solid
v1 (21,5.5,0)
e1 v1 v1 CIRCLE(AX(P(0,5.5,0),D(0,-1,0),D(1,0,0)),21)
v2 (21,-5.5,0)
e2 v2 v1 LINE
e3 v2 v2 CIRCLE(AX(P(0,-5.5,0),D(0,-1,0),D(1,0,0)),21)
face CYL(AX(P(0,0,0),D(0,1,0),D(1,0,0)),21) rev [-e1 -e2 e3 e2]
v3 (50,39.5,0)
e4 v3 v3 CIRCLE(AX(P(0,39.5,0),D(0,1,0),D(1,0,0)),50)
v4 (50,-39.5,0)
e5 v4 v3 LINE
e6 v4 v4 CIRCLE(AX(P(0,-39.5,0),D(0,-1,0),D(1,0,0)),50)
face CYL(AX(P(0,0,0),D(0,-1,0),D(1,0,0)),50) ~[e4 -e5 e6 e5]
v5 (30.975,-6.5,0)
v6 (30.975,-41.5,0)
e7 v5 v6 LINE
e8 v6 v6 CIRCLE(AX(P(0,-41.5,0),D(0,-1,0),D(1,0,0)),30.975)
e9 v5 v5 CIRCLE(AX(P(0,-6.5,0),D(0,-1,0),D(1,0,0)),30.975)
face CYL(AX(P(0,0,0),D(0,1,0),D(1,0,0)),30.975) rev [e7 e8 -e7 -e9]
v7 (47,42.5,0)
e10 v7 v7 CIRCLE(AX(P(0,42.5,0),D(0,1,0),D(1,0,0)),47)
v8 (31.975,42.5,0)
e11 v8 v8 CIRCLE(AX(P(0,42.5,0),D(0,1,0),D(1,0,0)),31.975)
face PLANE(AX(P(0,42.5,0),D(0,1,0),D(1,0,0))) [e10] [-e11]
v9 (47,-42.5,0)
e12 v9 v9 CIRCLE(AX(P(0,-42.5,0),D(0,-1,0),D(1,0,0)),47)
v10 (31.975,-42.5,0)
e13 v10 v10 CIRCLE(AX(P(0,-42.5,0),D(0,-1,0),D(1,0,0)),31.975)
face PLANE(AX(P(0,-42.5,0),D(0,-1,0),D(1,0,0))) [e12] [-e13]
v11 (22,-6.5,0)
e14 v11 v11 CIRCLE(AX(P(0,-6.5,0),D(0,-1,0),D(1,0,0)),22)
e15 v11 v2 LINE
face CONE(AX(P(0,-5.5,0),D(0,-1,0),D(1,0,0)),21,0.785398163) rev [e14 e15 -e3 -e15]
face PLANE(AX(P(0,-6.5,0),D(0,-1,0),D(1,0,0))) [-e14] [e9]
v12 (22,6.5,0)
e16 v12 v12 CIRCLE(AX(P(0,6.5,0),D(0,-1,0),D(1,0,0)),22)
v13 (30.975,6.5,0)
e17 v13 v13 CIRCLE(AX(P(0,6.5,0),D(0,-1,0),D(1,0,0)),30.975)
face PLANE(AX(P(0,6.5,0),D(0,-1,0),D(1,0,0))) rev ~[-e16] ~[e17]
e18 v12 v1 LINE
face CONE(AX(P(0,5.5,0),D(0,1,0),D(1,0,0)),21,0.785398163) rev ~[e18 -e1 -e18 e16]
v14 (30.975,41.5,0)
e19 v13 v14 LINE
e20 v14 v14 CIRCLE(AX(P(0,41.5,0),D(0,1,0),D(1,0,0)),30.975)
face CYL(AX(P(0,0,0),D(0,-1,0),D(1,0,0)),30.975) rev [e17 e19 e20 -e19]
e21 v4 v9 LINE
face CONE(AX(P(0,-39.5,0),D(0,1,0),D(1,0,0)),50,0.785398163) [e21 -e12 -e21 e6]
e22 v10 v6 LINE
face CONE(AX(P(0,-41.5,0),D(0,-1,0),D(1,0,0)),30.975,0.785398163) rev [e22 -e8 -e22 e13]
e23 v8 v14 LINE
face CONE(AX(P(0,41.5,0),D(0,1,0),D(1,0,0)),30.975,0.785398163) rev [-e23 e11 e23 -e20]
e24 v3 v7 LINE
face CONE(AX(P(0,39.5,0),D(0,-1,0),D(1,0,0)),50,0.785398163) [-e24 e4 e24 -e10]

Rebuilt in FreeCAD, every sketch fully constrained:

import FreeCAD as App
import Part
import Sketcher
Q = App.Units.Quantity


def edges_at(feature, points):
    """Names of the edges that pass closest to the given points."""
    edges = feature.Shape.Edges
    near = lambda p: min(range(len(edges)), key=lambda i: edges[i].distToShape(Part.Vertex(*p))[0])
    return sorted({f"Edge{near(p) + 1}" for p in points})

doc = App.newDocument("Part")
body = doc.addObject("PartDesign::Body", "Body")

# Sketch on XZ plane
sketch1 = body.newObject("Sketcher::SketchObject", "Sketch")
sketch1.AttachmentSupport = (doc.getObject("XZ_Plane"), [""])
sketch1.MapMode = "FlatFace"
sketch1.addGeometry([
    Part.Circle(App.Vector(0, 0, 0), App.Vector(0, 0, 1), 31),
    Part.Circle(App.Vector(0, 0, 0), App.Vector(0, 0, 1), 21),
], False)
sketch1.addConstraint([
    Sketcher.Constraint("Coincident", 0, 3, -1, 1),
    Sketcher.Constraint("Coincident", 1, 3, -1, 1),
    Sketcher.Constraint("Diameter", 1, Q("42 mm")),
    Sketcher.Constraint("Diameter", 0, Q("61.95 mm")),
])
pad1 = body.newObject("PartDesign::Pad", "Pad")
pad1.Profile = sketch1
pad1.Length = 13
pad1.Midplane = True

# Sketch on XZ plane
sketch2 = body.newObject("Sketcher::SketchObject", "Sketch001")
sketch2.AttachmentSupport = (doc.getObject("XZ_Plane"), [""])
sketch2.MapMode = "FlatFace"
sketch2.addGeometry([
    Part.Circle(App.Vector(0, 0, 0), App.Vector(0, 0, 1), 50),
    Part.Circle(App.Vector(0, 0, 0), App.Vector(0, 0, 1), 31),
], False)
sketch2.addConstraint([
    Sketcher.Constraint("Coincident", 0, 3, -1, 1),
    Sketcher.Constraint("Coincident", 1, 3, -1, 1),
    Sketcher.Constraint("Diameter", 0, Q("100 mm")),
    Sketcher.Constraint("Diameter", 1, Q("61.95 mm")),
])
pad2 = body.newObject("PartDesign::Pad", "Pad001")
pad2.Profile = sketch2
pad2.Length = 42.5

# Sketch on XZ plane
sketch3 = body.newObject("Sketcher::SketchObject", "Sketch002")
sketch3.AttachmentSupport = (doc.getObject("XZ_Plane"), [""])
sketch3.MapMode = "FlatFace"
sketch3.addGeometry([
    Part.Circle(App.Vector(0, 0, 0), App.Vector(0, 0, 1), 50),
    Part.Circle(App.Vector(0, 0, 0), App.Vector(0, 0, 1), 31),
], False)
sketch3.addConstraint([
    Sketcher.Constraint("Coincident", 0, 3, -1, 1),
    Sketcher.Constraint("Coincident", 1, 3, -1, 1),
    Sketcher.Constraint("Diameter", 0, Q("100 mm")),
    Sketcher.Constraint("Diameter", 1, Q("61.95 mm")),
])
pad3 = body.newObject("PartDesign::Pad", "Pad002")
pad3.Profile = sketch3
pad3.Length = 42.5
pad3.Reversed = True
doc.recompute()

chamfer = body.newObject("PartDesign::Chamfer", "Chamfer")
chamfer.Base = (pad3, edges_at(pad3, [(-50, 42.5, 0), (-50, -42.5, 0)]))
chamfer.Size = 3
doc.recompute()

chamfer2 = body.newObject("PartDesign::Chamfer", "Chamfer001")
chamfer2.Base = (chamfer, edges_at(chamfer, [
    (-30.975, 42.5, 0),
    (-21, 6.5, 0),
    (-21, -6.5, 0),
    (-30.975, -42.5, 0),
]))
chamfer2.Size = 1

doc.recompute()
